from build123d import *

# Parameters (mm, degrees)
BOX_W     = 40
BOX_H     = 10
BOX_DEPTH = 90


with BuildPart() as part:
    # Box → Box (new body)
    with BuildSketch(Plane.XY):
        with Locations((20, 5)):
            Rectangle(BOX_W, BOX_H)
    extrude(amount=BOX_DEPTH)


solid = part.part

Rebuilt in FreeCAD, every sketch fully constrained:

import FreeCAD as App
import Part
import Sketcher
from FreeCAD import Vector


def add_polygon(sketch, points):
    """Adds a closed chain of lines whose ends are joined by coincident constraints."""
    first, n = sketch.GeometryCount, len(points)
    for a, b in zip(points, points[1:] + points[:1]):
        sketch.addGeometry(Part.LineSegment(App.Vector(*a, 0), App.Vector(*b, 0)), False)
    for i in range(n):
        sketch.addConstraint(Sketcher.Constraint("Coincident", first + i, 2, first + (i + 1) % n, 1))

doc = App.newDocument("Part")
body = doc.addObject("PartDesign::Body", "Body")

sketch1 = body.newObject("Sketcher::SketchObject", "Sketch")
sketch1.AttachmentSupport = (doc.getObject("XY_Plane"), [""])
sketch1.MapMode = "FlatFace"
add_polygon(sketch1, [(0, 10), (0, 0), (40, 0), (40, 10)])
sketch1.addConstraint(Sketcher.Constraint("Vertical", 0))
sketch1.addConstraint(Sketcher.Constraint("Horizontal", 1))
sketch1.addConstraint(Sketcher.Constraint("Vertical", 2))
sketch1.addConstraint(Sketcher.Constraint("Horizontal", 3))
sketch1.addConstraint(Sketcher.Constraint("Coincident", 0, 2, -1, 1))
sketch1.addConstraint(Sketcher.Constraint("DistanceX", 1, 1, 1, 2, 40.0))
sketch1.addConstraint(Sketcher.Constraint("DistanceY", 0, 2, 0, 1, 10.0))
pad1 = body.newObject("PartDesign::Pad", "Pad")
pad1.Profile = sketch1
pad1.Length = 90

doc.recompute()
